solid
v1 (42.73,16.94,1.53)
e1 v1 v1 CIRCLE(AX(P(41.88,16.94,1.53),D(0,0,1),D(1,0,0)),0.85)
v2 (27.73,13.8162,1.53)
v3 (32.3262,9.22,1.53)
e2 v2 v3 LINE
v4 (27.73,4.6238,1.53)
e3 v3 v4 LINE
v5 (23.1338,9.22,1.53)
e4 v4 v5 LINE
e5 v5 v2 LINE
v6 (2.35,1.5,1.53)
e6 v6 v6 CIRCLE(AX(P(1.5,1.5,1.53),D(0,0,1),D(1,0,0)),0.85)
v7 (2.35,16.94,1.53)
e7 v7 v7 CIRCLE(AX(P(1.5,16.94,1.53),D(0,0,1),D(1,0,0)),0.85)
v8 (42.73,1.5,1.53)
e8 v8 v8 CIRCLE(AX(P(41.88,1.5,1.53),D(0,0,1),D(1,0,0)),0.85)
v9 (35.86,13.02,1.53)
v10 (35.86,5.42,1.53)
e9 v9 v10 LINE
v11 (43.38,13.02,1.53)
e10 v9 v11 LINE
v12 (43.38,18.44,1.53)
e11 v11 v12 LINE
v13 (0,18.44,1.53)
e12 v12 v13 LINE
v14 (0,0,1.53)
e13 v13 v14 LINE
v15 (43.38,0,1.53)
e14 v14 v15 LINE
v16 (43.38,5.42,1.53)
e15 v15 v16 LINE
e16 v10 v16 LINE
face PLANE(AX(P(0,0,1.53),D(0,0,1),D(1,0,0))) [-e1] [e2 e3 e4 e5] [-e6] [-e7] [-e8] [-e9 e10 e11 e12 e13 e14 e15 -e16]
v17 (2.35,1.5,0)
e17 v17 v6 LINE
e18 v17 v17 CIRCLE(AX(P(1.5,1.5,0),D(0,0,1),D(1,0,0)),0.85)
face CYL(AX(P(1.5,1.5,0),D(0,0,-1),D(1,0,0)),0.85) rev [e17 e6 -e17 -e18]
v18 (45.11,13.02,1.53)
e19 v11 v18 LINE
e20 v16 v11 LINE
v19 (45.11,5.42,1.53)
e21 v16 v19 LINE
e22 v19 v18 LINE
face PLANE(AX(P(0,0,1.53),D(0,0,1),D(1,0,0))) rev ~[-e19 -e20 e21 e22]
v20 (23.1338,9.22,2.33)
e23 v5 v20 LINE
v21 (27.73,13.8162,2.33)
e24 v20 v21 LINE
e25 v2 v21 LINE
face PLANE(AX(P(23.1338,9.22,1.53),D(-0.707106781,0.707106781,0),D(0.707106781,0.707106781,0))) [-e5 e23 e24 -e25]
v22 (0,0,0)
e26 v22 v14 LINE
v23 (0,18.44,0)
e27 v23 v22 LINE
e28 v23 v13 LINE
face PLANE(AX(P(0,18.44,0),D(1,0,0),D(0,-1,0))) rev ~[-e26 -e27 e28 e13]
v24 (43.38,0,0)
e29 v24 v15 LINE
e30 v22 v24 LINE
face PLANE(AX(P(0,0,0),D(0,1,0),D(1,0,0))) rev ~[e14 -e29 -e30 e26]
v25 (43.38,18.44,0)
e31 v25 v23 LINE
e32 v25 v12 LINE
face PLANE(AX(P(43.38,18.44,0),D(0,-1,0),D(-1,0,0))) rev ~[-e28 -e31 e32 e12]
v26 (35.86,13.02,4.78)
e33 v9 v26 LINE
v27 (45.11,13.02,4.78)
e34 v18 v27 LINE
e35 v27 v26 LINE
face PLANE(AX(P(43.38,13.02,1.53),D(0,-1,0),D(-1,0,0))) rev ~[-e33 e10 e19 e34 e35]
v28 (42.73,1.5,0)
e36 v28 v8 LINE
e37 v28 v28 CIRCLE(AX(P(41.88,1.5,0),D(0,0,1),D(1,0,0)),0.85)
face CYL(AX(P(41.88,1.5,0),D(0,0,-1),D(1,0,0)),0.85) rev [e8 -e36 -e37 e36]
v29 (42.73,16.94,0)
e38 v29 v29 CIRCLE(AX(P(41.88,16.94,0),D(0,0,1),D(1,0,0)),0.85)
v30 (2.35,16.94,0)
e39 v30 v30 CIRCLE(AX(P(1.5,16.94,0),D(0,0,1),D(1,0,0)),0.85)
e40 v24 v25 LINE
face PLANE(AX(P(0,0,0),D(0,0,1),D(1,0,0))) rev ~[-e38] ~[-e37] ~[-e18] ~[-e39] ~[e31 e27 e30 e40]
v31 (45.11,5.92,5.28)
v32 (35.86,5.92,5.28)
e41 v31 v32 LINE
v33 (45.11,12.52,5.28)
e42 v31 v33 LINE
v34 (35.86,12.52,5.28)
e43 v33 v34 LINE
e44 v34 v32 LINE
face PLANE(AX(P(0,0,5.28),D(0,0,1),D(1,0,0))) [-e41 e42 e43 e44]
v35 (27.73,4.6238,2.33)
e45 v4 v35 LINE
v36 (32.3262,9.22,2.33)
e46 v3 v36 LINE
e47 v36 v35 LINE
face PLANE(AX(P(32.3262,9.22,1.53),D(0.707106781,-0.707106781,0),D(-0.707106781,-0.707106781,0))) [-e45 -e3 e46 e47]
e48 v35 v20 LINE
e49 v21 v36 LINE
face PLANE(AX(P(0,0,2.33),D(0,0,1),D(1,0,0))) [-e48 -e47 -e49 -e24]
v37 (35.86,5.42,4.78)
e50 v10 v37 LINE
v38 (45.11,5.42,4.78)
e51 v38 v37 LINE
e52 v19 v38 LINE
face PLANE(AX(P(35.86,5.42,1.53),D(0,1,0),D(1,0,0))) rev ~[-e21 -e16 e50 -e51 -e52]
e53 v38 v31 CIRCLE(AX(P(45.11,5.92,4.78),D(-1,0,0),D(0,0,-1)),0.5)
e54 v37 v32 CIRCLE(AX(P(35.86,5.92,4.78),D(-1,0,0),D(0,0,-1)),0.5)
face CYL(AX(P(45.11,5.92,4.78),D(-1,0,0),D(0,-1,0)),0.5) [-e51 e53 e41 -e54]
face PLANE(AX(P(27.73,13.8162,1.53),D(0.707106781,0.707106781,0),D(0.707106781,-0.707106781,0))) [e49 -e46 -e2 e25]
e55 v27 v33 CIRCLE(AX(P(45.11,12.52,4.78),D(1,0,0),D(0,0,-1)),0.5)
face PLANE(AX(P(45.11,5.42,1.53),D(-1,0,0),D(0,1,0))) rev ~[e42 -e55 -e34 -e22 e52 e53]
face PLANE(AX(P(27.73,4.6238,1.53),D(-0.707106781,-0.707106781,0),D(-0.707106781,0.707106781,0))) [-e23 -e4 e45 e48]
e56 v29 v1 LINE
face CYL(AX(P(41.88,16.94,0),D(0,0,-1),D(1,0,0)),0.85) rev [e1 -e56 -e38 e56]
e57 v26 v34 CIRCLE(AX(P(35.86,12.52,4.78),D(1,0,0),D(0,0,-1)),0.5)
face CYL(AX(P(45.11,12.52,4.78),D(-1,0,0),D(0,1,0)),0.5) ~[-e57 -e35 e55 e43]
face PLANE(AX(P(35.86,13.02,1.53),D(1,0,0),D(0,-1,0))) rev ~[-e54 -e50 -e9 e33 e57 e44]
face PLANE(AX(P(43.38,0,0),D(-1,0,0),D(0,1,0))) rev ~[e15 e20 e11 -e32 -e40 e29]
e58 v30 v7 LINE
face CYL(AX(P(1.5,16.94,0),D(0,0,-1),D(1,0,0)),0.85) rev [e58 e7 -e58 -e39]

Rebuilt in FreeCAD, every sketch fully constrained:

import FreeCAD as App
import Part
import Sketcher

V = App.Vector


def edges_at(feature, points):
    """Names of the edges that pass closest to the given points."""
    edges = feature.Shape.Edges
    near = lambda p: min(range(len(edges)), key=lambda i: edges[i].distToShape(Part.Vertex(*p))[0])
    return sorted({f"Edge{near(p) + 1}" for p in points})


def add_polygon(sketch, points):
    """Adds a closed chain of lines whose ends are joined by coincident constraints."""
    first, n = sketch.GeometryCount, len(points)
    for a, b in zip(points, points[1:] + points[:1]):
        sketch.addGeometry(Part.LineSegment(App.Vector(*a, 0), App.Vector(*b, 0)), False)
    for i in range(n):
        sketch.addConstraint(Sketcher.Constraint("Coincident", first + i, 2, first + (i + 1) % n, 1))

doc = App.newDocument("Part")
body = doc.addObject("PartDesign::Body", "Body")

sketch1 = body.newObject("Sketcher::SketchObject", "Sketch")
sketch1.AttachmentSupport = (doc.getObject("XY_Plane"), [""])
sketch1.MapMode = "FlatFace"
add_polygon(sketch1, [(0, 18.4), (0, 0), (43.4, 0), (43.4, 18.4)])
sketch1.addGeometry(Part.Circle(V(1.5, 1.5, 0), V(0, 0, 1), 0.8), False)
sketch1.addGeometry(Part.Circle(V(41.9, 1.5, 0), V(0, 0, 1), 0.8), False)
sketch1.addGeometry(Part.Circle(V(1.5, 16.9, 0), V(0, 0, 1), 0.8), False)
sketch1.addGeometry(Part.Circle(V(41.9, 16.9, 0), V(0, 0, 1), 0.8), False)
sketch1.addConstraint([
    Sketcher.Constraint("Vertical", 0),
    Sketcher.Constraint("Horizontal", 1),
    Sketcher.Constraint("Vertical", 2),
    Sketcher.Constraint("Horizontal", 3),
    Sketcher.Constraint("Coincident", 0, 2, -1, 1),
    Sketcher.Constraint("Equal", 4, 5),
    Sketcher.Constraint("Equal", 5, 6),
    Sketcher.Constraint("Equal", 6, 7),
    Sketcher.Constraint("Horizontal", 4, 3, 5, 3),
    Sketcher.Constraint("Horizontal", 6, 3, 7, 3),
    Sketcher.Constraint("Vertical", 4, 3, 6, 3),
    Sketcher.Constraint("Vertical", 5, 3, 7, 3),
    Sketcher.Constraint("Diameter", 4, 1.7),
    Sketcher.Constraint("DistanceX", 1, 1, 1, 2, 43.38),
    Sketcher.Constraint("DistanceY", 0, 2, 0, 1, 18.44),
    Sketcher.Constraint("DistanceX", -1, 1, 4, 3, 1.5),
    Sketcher.Constraint("DistanceY", -1, 1, 4, 3, 1.5),
    Sketcher.Constraint("DistanceX", 5, 3, 1, 2, 1.5),
    Sketcher.Constraint("DistanceY", 7, 3, 2, 2, 1.5),
])
pad1 = body.newObject("PartDesign::Pad", "Pad")
pad1.Profile = sketch1
pad1.Length = 1.53

sketch2 = body.newObject("Sketcher::SketchObject", "Sketch001")
sketch2.AttachmentSupport = (doc.getObject("XY_Plane"), [""])
sketch2.MapMode = "FlatFace"
sketch2.AttachmentOffset = App.Placement(V(0, 0, 1.53), App.Rotation())
add_polygon(sketch2, [(36, 5), (45, 5), (45, 13), (36, 13)])
sketch2.addConstraint([
    Sketcher.Constraint("Horizontal", 0),
    Sketcher.Constraint("Vertical", 1),
    Sketcher.Constraint("Horizontal", 2),
    Sketcher.Constraint("Vertical", 3),
    Sketcher.Constraint("DistanceY", 1, 1, 1, 2, 7.6),
    Sketcher.Constraint("DistanceX", 0, 1, 0, 2, 9.25),
    Sketcher.Constraint("DistanceX", -1, 1, 0, 2, 45.11),
    Sketcher.Constraint("DistanceY", -1, 1, 0, 2, 5.42),
])
pad2 = body.newObject("PartDesign::Pad", "Pad001")
pad2.Profile = sketch2
pad2.Length = 3.75

sketch3 = body.newObject("Sketcher::SketchObject", "Sketch002")
sketch3.AttachmentSupport = (doc.getObject("XY_Plane"), [""])
sketch3.MapMode = "FlatFace"
sketch3.AttachmentOffset = App.Placement(V(0, 0, 1.53), App.Rotation())
add_polygon(sketch3, [(28, 14), (23, 9), (28, 5), (32, 9)])
sketch3.addConstraint([
    Sketcher.Constraint("Perpendicular", 0, 1),
    Sketcher.Constraint("Perpendicular", 1, 2),
    Sketcher.Constraint("Perpendicular", 2, 3),
    Sketcher.Constraint("Horizontal", 0, 2, 2, 2),
    Sketcher.Constraint("Vertical", 1, 2, 3, 2),
    Sketcher.Constraint("Distance", 0, 6.5),
    Sketcher.Constraint("DistanceY", -1, 1, 0, 2, 9.22),
    Sketcher.Constraint("DistanceX", -1, 1, 1, 2, 27.73),
])
pad3 = body.newObject("PartDesign::Pad", "Pad002")
pad3.Profile = sketch3
pad3.Length = 0.8
doc.recompute()

fillet = body.newObject("PartDesign::Fillet", "Fillet")
fillet.Base = (pad3, edges_at(pad3, [(40.485, 5.42, 5.28), (40.485, 13.02, 5.28)]))
fillet.Radius = 0.5

doc.recompute()
